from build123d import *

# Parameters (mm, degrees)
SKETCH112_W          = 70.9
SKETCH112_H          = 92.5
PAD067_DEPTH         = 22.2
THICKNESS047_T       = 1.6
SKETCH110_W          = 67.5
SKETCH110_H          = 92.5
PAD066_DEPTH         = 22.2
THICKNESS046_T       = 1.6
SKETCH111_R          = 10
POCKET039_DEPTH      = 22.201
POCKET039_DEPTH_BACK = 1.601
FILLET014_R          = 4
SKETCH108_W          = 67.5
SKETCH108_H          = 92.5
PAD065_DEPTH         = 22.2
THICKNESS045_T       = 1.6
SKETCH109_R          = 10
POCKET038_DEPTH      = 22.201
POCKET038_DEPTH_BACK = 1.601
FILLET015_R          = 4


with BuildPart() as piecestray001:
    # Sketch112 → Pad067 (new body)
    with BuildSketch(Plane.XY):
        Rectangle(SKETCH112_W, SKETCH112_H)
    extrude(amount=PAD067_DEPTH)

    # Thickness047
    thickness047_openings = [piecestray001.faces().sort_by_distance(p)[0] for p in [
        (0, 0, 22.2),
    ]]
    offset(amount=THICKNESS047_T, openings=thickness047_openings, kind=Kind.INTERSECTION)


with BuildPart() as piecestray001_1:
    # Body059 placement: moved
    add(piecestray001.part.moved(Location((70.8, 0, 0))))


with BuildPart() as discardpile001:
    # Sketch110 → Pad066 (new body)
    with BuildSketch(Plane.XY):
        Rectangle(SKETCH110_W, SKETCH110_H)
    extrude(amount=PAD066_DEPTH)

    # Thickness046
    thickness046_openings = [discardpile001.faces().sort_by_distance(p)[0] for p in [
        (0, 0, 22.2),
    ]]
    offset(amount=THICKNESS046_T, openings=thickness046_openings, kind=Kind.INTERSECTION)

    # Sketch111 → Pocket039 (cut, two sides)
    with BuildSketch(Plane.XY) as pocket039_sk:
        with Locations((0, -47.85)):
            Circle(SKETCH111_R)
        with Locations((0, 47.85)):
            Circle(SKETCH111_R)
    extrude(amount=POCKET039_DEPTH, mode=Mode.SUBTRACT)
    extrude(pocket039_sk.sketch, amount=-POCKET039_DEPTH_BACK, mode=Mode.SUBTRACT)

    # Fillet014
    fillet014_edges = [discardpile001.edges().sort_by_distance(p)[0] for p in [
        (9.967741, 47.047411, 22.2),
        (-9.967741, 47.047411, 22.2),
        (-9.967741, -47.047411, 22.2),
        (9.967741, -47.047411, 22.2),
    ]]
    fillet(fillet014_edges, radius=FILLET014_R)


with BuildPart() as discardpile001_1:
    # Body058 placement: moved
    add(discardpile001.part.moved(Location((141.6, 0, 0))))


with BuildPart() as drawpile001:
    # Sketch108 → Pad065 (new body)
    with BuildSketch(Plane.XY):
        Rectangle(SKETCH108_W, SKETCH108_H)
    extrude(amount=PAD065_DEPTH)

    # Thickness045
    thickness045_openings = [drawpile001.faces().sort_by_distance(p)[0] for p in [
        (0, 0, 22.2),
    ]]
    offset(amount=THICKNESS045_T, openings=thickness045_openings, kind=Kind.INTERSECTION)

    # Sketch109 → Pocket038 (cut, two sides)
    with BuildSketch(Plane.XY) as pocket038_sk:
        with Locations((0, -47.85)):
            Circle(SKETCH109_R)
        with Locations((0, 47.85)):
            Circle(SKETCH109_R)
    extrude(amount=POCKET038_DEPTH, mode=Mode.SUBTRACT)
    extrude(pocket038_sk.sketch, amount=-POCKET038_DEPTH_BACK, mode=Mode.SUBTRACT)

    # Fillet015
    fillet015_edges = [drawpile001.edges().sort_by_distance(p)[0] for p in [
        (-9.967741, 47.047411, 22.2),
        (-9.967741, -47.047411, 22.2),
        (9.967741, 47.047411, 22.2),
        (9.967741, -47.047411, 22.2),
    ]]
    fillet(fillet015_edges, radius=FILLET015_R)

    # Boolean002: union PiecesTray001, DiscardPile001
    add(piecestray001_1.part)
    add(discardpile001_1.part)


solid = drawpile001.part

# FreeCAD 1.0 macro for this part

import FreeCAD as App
import Part
import Sketcher
Q = App.Units.Quantity


def edges_at(feature, points):
    """Names of the edges that pass closest to the given points."""
    edges = feature.Shape.Edges
    near = lambda p: min(range(len(edges)), key=lambda i: edges[i].distToShape(Part.Vertex(*p))[0])
    return sorted({f"Edge{near(p) + 1}" for p in points})


def faces_at(feature, points):
    """Names of the faces that lie closest to the given points."""
    faces = feature.Shape.Faces
    near = lambda p: min(range(len(faces)), key=lambda i: faces[i].distToShape(Part.Vertex(*p))[0])
    return sorted({f"Face{near(p) + 1}" for p in points})


def add_polygon(sketch, points):
    """Adds a closed chain of lines whose ends are joined by coincident constraints."""
    first, n = sketch.GeometryCount, len(points)
    for a, b in zip(points, points[1:] + points[:1]):
        sketch.addGeometry(Part.LineSegment(App.Vector(*a, 0), App.Vector(*b, 0)), False)
    for i in range(n):
        sketch.addConstraint(Sketcher.Constraint("Coincident", first + i, 2, first + (i + 1) % n, 1))

doc = App.newDocument("Part")
body = doc.addObject("PartDesign::Body", "Body")

# Sketch on XY plane
sketch1 = body.newObject("Sketcher::SketchObject", "Sketch")
sketch1.AttachmentSupport = (doc.getObject("XY_Plane"), [""])
sketch1.MapMode = "FlatFace"
add_polygon(sketch1, [(-35.45, 46.25), (-35.45, -46.25), (35.45, -46.25), (35.45, 46.25)])  # lines 0-3
sketch1.addConstraint([
    Sketcher.Constraint("Vertical", 0),
    Sketcher.Constraint("Horizontal", 1),
    Sketcher.Constraint("Vertical", 2),
    Sketcher.Constraint("Horizontal", 3),
    Sketcher.Constraint("Symmetric", 0, 2, 2, 2, -1, 1),
    Sketcher.Constraint("DistanceX", 1, 1, 1, 2, Q("70.9 mm")),
    Sketcher.Constraint("DistanceY", 0, 2, 0, 1, Q("92.5 mm")),
])
pad1 = body.newObject("PartDesign::Pad", "Pad")
pad1.Profile = sketch1
pad1.Length = 22.2
doc.recompute()

thickness = body.newObject("PartDesign::Thickness", "Thickness")
thickness.Base = (pad1, faces_at(pad1, [(0, 0, 22.2)]))
thickness.Value = 1.6
thickness.Reversed = False
thickness.Join = "Intersection"
body2 = doc.addObject("PartDesign::Body", "Body001")
doc.recompute()

body.Placement = App.Placement(App.Vector(70.8, 0, 0), App.Rotation(App.Vector(0, 0, 1), 0))
boolean = body2.newObject("PartDesign::Boolean", "Boolean")
boolean.Type = "Fuse"
boolean.addObjects([body])
body3 = doc.addObject("PartDesign::Body", "Body002")

# Sketch on XY plane
sketch2 = body3.newObject("Sketcher::SketchObject", "Sketch001")
sketch2.AttachmentSupport = (doc.getObject("XY_Plane002"), [""])
sketch2.MapMode = "FlatFace"
add_polygon(sketch2, [(-33.75, 46.25), (-33.75, -46.25), (33.75, -46.25), (33.75, 46.25)])  # lines 0-3
sketch2.addConstraint([
    Sketcher.Constraint("Vertical", 0),
    Sketcher.Constraint("Horizontal", 1),
    Sketcher.Constraint("Vertical", 2),
    Sketcher.Constraint("Horizontal", 3),
    Sketcher.Constraint("Symmetric", 0, 2, 2, 2, -1, 1),
    Sketcher.Constraint("DistanceX", 1, 1, 1, 2, Q("67.5 mm")),
    Sketcher.Constraint("DistanceY", 0, 2, 0, 1, Q("92.5 mm")),
])
pad2 = body3.newObject("PartDesign::Pad", "Pad001")
pad2.Profile = sketch2
pad2.Length = 22.2
doc.recompute()

thickness2 = body3.newObject("PartDesign::Thickness", "Thickness001")
thickness2.Base = (pad2, faces_at(pad2, [(0, 0, 22.2)]))
thickness2.Value = 1.6
thickness2.Reversed = False
thickness2.Join = "Intersection"

# Sketch on XY plane
sketch3 = body3.newObject("Sketcher::SketchObject", "Sketch002")
sketch3.AttachmentSupport = (doc.getObject("XY_Plane002"), [""])
sketch3.MapMode = "FlatFace"
sketch3.addGeometry([
    Part.Circle(App.Vector(0, -47.85, 0), App.Vector(0, 0, 1), 10),
    Part.Circle(App.Vector(0, 47.85, 0), App.Vector(0, 0, 1), 10),
], False)
sketch3.addConstraint([
    Sketcher.Constraint("Equal", 0, 1),
    Sketcher.Constraint("Symmetric", 0, 3, 1, 3, -1, 1),
    Sketcher.Constraint("PointOnObject", 0, 3, -2),
    Sketcher.Constraint("Diameter", 0, Q("20 mm")),
    Sketcher.Constraint("DistanceY", 0, 3, 1, 3, Q("95.7 mm")),
])
pocket1 = body3.newObject("PartDesign::Pocket", "Pocket")
pocket1.Profile = sketch3
pocket1.Type = "ThroughAll"
pocket1.Midplane = True
doc.recompute()

fillet = body3.newObject("PartDesign::Fillet", "Fillet")
fillet.Base = (pocket1, edges_at(pocket1, [
    (9.968, 47.047, 22.2),
    (-9.968, 47.047, 22.2),
    (-9.968, -47.047, 22.2),
    (9.968, -47.047, 22.2),
]))
fillet.Radius = 4
body4 = doc.addObject("PartDesign::Body", "Body003")
doc.recompute()

body3.Placement = App.Placement(App.Vector(141.6, 0, 0), App.Rotation(App.Vector(0, 0, 1), 0))
boolean2 = body4.newObject("PartDesign::Boolean", "Boolean001")
boolean2.Type = "Fuse"
boolean2.addObjects([body3])
body5 = doc.addObject("PartDesign::Body", "Body004")

# Sketch on XY plane
sketch4 = body5.newObject("Sketcher::SketchObject", "Sketch003")
sketch4.AttachmentSupport = (doc.getObject("XY_Plane004"), [""])
sketch4.MapMode = "FlatFace"
add_polygon(sketch4, [(-33.75, 46.25), (-33.75, -46.25), (33.75, -46.25), (33.75, 46.25)])  # lines 0-3
sketch4.addConstraint([
    Sketcher.Constraint("Vertical", 0),
    Sketcher.Constraint("Horizontal", 1),
    Sketcher.Constraint("Vertical", 2),
    Sketcher.Constraint("Horizontal", 3),
    Sketcher.Constraint("Symmetric", 0, 2, 2, 2, -1, 1),
    Sketcher.Constraint("DistanceX", 1, 1, 1, 2, Q("67.5 mm")),
    Sketcher.Constraint("DistanceY", 0, 2, 0, 1, Q("92.5 mm")),
])
pad3 = body5.newObject("PartDesign::Pad", "Pad002")
pad3.Profile = sketch4
pad3.Length = 22.2
doc.recompute()

thickness3 = body5.newObject("PartDesign::Thickness", "Thickness002")
thickness3.Base = (pad3, faces_at(pad3, [(0, 0, 22.2)]))
thickness3.Value = 1.6
thickness3.Reversed = False
thickness3.Join = "Intersection"

# Sketch on XY plane
sketch5 = body5.newObject("Sketcher::SketchObject", "Sketch004")
sketch5.AttachmentSupport = (doc.getObject("XY_Plane004"), [""])
sketch5.MapMode = "FlatFace"
sketch5.addGeometry([
    Part.Circle(App.Vector(0, -47.85, 0), App.Vector(0, 0, 1), 10),
    Part.Circle(App.Vector(0, 47.85, 0), App.Vector(0, 0, 1), 10),
], False)
sketch5.addConstraint([
    Sketcher.Constraint("Equal", 0, 1),
    Sketcher.Constraint("Symmetric", 0, 3, 1, 3, -1, 1),
    Sketcher.Constraint("PointOnObject", 0, 3, -2),
    Sketcher.Constraint("Diameter", 0, Q("20 mm")),
    Sketcher.Constraint("DistanceY", 0, 3, 1, 3, Q("95.7 mm")),
])
pocket2 = body5.newObject("PartDesign::Pocket", "Pocket001")
pocket2.Profile = sketch5
pocket2.Type = "ThroughAll"
pocket2.Midplane = True
doc.recompute()

fillet2 = body5.newObject("PartDesign::Fillet", "Fillet001")
fillet2.Base = (pocket2, edges_at(pocket2, [
    (-9.968, 47.047, 22.2),
    (-9.968, -47.047, 22.2),
    (9.968, 47.047, 22.2),
    (9.968, -47.047, 22.2),
]))
fillet2.Radius = 4
doc.recompute()

boolean3 = body5.newObject("PartDesign::Boolean", "Boolean002")
boolean3.Type = "Fuse"
boolean3.addObjects([body2])
doc.recompute()

boolean4 = body5.newObject("PartDesign::Boolean", "Boolean003")
boolean4.Type = "Fuse"
boolean4.addObjects([body4])

doc.recompute()
